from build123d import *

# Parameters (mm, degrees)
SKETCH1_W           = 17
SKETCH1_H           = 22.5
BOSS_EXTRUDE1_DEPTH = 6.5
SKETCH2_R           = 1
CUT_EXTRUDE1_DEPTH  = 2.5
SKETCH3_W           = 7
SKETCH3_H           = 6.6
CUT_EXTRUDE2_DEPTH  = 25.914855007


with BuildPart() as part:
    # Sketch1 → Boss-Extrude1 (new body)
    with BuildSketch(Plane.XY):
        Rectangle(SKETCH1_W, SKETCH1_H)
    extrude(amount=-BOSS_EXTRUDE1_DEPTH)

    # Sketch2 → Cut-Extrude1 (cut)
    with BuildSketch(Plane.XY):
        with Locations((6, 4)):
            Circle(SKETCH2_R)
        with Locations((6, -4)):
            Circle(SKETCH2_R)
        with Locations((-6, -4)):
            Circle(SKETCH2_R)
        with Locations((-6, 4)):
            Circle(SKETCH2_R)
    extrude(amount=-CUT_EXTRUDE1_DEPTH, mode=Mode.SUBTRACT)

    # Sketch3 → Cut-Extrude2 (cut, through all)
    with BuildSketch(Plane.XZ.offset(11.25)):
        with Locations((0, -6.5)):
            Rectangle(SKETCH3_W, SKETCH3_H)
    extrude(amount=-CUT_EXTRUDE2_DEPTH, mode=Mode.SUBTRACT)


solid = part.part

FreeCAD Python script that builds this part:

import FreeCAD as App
import Part
import Sketcher
from FreeCAD import Vector
Q = App.Units.Quantity


def add_polygon(sketch, points):
    """Adds a closed chain of lines whose ends are joined by coincident constraints."""
    first, n = sketch.GeometryCount, len(points)
    for a, b in zip(points, points[1:] + points[:1]):
        sketch.addGeometry(Part.LineSegment(App.Vector(*a, 0), App.Vector(*b, 0)), False)
    for i in range(n):
        sketch.addConstraint(Sketcher.Constraint("Coincident", first + i, 2, first + (i + 1) % n, 1))

doc = App.newDocument("Part")
body = doc.addObject("PartDesign::Body", "Body")

# Sketch on XY plane
sketch1 = body.newObject("Sketcher::SketchObject", "Sketch")
sketch1.AttachmentSupport = (doc.getObject("XY_Plane"), [""])
sketch1.MapMode = "FlatFace"
add_polygon(sketch1, [(-8, 11), (-8, -11), (8, -11), (8, 11)])  # lines 0-3
sketch1.addConstraint([
    Sketcher.Constraint("Vertical", 0),
    Sketcher.Constraint("Horizontal", 1),
    Sketcher.Constraint("Vertical", 2),
    Sketcher.Constraint("Horizontal", 3),
    Sketcher.Constraint("Symmetric", 0, 2, 2, 2, -1, 1),
    Sketcher.Constraint("DistanceX", 1, 1, 1, 2, Q("17 mm")),
    Sketcher.Constraint("DistanceY", 0, 2, 0, 1, Q("22.5 mm")),
])
pad1 = body.newObject("PartDesign::Pad", "Pad")
pad1.Profile = sketch1
pad1.Length = 6.5
pad1.Reversed = True

# Sketch on XY plane
sketch2 = body.newObject("Sketcher::SketchObject", "Sketch001")
sketch2.AttachmentSupport = (doc.getObject("XY_Plane"), [""])
sketch2.MapMode = "FlatFace"
sketch2.addGeometry([
    Part.Circle(Vector(6, 4, 0), Vector(0, 0, 1), 1),
    Part.Circle(Vector(6, -4, 0), Vector(0, 0, 1), 1),
    Part.Circle(Vector(-6, -4, 0), Vector(0, 0, 1), 1),
    Part.Circle(Vector(-6, 4, 0), Vector(0, 0, 1), 1),
], False)
sketch2.addConstraint([
    Sketcher.Constraint("Equal", 0, 1),
    Sketcher.Constraint("Equal", 1, 2),
    Sketcher.Constraint("Equal", 2, 3),
    Sketcher.Constraint("Symmetric", 0, 3, 2, 3, -1, 1),
    Sketcher.Constraint("Symmetric", 1, 3, 3, 3, -1, 1),
    Sketcher.Constraint("Symmetric", 1, 3, 2, 3, -2),
    Sketcher.Constraint("Diameter", 0, Q("2 mm")),
    Sketcher.Constraint("DistanceX", -1, 1, 0, 3, Q("6 mm")),
    Sketcher.Constraint("DistanceY", -1, 1, 0, 3, Q("4 mm")),
])
pocket1 = body.newObject("PartDesign::Pocket", "Pocket")
pocket1.Profile = sketch2
pocket1.Length = 2.5

# Sketch on XZ plane
sketch3 = body.newObject("Sketcher::SketchObject", "Sketch002")
sketch3.AttachmentSupport = (doc.getObject("XZ_Plane"), [""])
sketch3.MapMode = "FlatFace"
sketch3.AttachmentOffset = App.Placement(Vector(0, 0, 11.25), App.Rotation())
add_polygon(sketch3, [(-4, -3), (-4, -10), (4, -10), (4, -3)])  # lines 0-3
sketch3.addConstraint([
    Sketcher.Constraint("Vertical", 0),
    Sketcher.Constraint("Horizontal", 1),
    Sketcher.Constraint("Vertical", 2),
    Sketcher.Constraint("Horizontal", 3),
    Sketcher.Constraint("DistanceX", 1, 1, 1, 2, Q("7 mm")),
    Sketcher.Constraint("DistanceY", 0, 2, 0, 1, Q("6.6 mm")),
    Sketcher.Constraint("DistanceX", 0, 2, -1, 1, Q("3.5 mm")),
    Sketcher.Constraint("DistanceY", 0, 2, -1, 1, Q("9.8 mm")),
])
pocket2 = body.newObject("PartDesign::Pocket", "Pocket001")
pocket2.Profile = sketch3
pocket2.Type = "ThroughAll"

doc.recompute()
